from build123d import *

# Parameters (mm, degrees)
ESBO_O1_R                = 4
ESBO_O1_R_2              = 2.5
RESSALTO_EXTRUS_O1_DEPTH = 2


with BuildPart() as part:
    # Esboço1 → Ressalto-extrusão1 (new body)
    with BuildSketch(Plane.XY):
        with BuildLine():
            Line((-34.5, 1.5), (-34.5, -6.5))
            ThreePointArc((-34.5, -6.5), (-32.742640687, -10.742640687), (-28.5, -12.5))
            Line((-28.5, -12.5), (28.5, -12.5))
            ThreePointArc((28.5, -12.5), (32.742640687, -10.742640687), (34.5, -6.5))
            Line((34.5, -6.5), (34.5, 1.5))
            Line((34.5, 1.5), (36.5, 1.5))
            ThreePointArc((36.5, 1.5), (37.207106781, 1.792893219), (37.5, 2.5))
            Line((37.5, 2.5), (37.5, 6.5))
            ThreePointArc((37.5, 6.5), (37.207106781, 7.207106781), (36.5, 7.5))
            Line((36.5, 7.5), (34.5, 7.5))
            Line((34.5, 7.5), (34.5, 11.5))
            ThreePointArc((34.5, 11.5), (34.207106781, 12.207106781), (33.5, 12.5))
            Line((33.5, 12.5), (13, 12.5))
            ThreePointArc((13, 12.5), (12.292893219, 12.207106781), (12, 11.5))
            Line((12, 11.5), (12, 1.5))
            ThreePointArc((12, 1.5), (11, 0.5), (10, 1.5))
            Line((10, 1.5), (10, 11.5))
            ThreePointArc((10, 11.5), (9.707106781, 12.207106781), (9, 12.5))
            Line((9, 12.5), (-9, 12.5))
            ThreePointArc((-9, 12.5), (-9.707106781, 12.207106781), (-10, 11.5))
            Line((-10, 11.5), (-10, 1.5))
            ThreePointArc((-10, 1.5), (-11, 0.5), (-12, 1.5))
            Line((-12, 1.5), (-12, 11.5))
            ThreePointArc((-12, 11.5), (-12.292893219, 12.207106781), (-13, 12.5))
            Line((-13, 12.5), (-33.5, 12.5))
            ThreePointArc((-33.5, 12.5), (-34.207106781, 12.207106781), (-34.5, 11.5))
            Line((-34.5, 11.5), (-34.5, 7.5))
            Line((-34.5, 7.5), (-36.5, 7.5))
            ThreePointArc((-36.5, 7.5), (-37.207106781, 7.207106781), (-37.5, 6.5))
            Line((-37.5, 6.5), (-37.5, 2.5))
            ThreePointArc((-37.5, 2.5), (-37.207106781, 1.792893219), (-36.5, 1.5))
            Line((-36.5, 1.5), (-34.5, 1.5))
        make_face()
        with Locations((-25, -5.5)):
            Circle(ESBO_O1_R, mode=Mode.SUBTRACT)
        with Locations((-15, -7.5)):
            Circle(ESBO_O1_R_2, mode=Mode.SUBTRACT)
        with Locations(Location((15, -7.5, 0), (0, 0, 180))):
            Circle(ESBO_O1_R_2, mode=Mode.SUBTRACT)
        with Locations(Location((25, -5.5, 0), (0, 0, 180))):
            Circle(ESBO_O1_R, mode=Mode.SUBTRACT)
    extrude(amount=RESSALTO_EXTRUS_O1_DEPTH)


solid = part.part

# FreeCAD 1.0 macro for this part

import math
import FreeCAD as App
import Part
import Sketcher
from FreeCAD import Vector
Q = App.Units.Quantity

doc = App.newDocument("Part")
body = doc.addObject("PartDesign::Body", "Body")

# Sketch on XY plane
sketch1 = doc.addObject("Sketcher::SketchObject", "Sketch")
body.addObject(sketch1)
sketch1.AttachmentSupport = (doc.XY_Plane, [""])
sketch1.MapMode = "FlatFace"
sketch1.addGeometry([
    Part.LineSegment(Vector(-34.5, 1.5, 0), Vector(-34.5, -6.5, 0)),  # 0
    Part.ArcOfCircle(Part.Circle(Vector(-28.5, -6.5, 0), Vector(0, 0, 1), 6), math.radians(180), math.radians(270)),  # 1
    Part.LineSegment(Vector(-28.5, -12.5, 0), Vector(28.5, -12.5, 0)),  # 2
    Part.ArcOfCircle(Part.Circle(Vector(28.5, -6.5, 0), Vector(0, 0, 1), 6), math.radians(-90), math.radians(0)),  # 3
    Part.LineSegment(Vector(34.5, -6.5, 0), Vector(34.5, 1.5, 0)),  # 4
    Part.LineSegment(Vector(34.5, 1.5, 0), Vector(36.5, 1.5, 0)),  # 5
    Part.ArcOfCircle(Part.Circle(Vector(36.5, 2.5, 0), Vector(0, 0, 1), 1), math.radians(-90), math.radians(0)),  # 6
    Part.LineSegment(Vector(37.5, 2.5, 0), Vector(37.5, 6.5, 0)),  # 7
    Part.ArcOfCircle(Part.Circle(Vector(36.5, 6.5, 0), Vector(0, 0, 1), 1), math.radians(0), math.radians(90)),  # 8
    Part.LineSegment(Vector(36.5, 7.5, 0), Vector(34.5, 7.5, 0)),  # 9
    Part.LineSegment(Vector(34.5, 7.5, 0), Vector(34.5, 11.5, 0)),  # 10
    Part.ArcOfCircle(Part.Circle(Vector(33.5, 11.5, 0), Vector(0, 0, 1), 1), math.radians(0), math.radians(90)),  # 11
    Part.LineSegment(Vector(33.5, 12.5, 0), Vector(13, 12.5, 0)),  # 12
    Part.ArcOfCircle(Part.Circle(Vector(13, 11.5, 0), Vector(0, 0, 1), 1), math.radians(90), math.radians(180)),  # 13
    Part.LineSegment(Vector(12, 11.5, 0), Vector(12, 1.5, 0)),  # 14
    Part.ArcOfCircle(Part.Circle(Vector(11, 1.5, 0), Vector(0, 0, 1), 1), math.radians(180), math.radians(360)),  # 15
    Part.LineSegment(Vector(10, 1.5, 0), Vector(10, 11.5, 0)),  # 16
    Part.ArcOfCircle(Part.Circle(Vector(9, 11.5, 0), Vector(0, 0, 1), 1), math.radians(0), math.radians(90)),  # 17
    Part.LineSegment(Vector(9, 12.5, 0), Vector(-9, 12.5, 0)),  # 18
    Part.ArcOfCircle(Part.Circle(Vector(-9, 11.5, 0), Vector(0, 0, 1), 1), math.radians(90), math.radians(180)),  # 19
    Part.LineSegment(Vector(-10, 11.5, 0), Vector(-10, 1.5, 0)),  # 20
    Part.ArcOfCircle(Part.Circle(Vector(-11, 1.5, 0), Vector(0, 0, 1), 1), math.radians(180), math.radians(360)),  # 21
    Part.LineSegment(Vector(-12, 1.5, 0), Vector(-12, 11.5, 0)),  # 22
    Part.ArcOfCircle(Part.Circle(Vector(-13, 11.5, 0), Vector(0, 0, 1), 1), math.radians(0), math.radians(90)),  # 23
    Part.LineSegment(Vector(-13, 12.5, 0), Vector(-33.5, 12.5, 0)),  # 24
    Part.ArcOfCircle(Part.Circle(Vector(-33.5, 11.5, 0), Vector(0, 0, 1), 1), math.radians(90), math.radians(180)),  # 25
    Part.LineSegment(Vector(-34.5, 11.5, 0), Vector(-34.5, 7.5, 0)),  # 26
    Part.LineSegment(Vector(-34.5, 7.5, 0), Vector(-36.5, 7.5, 0)),  # 27
    Part.ArcOfCircle(Part.Circle(Vector(-36.5, 6.5, 0), Vector(0, 0, 1), 1), math.radians(90), math.radians(180)),  # 28
    Part.LineSegment(Vector(-37.5, 6.5, 0), Vector(-37.5, 2.5, 0)),  # 29
    Part.ArcOfCircle(Part.Circle(Vector(-36.5, 2.5, 0), Vector(0, 0, 1), 1), math.radians(-180), math.radians(-90)),  # 30
    Part.LineSegment(Vector(-36.5, 1.5, 0), Vector(-34.5, 1.5, 0)),  # 31
    Part.Circle(Vector(-15, -7.5, 0), Vector(0, 0, 1), 2.5),  # 32
    Part.Circle(Vector(15, -7.5, 0), Vector(0, 0, 1), 2.5),  # 33
    Part.Circle(Vector(-25, -5.5, 0), Vector(0, 0, 1), 4),  # 34
    Part.Circle(Vector(25, -5.5, 0), Vector(0, 0, 1), 4),  # 35
], False)
sketch1.addConstraint([
    Sketcher.Constraint("Tangent", 0, 2, 1, 1),
    Sketcher.Constraint("Tangent", 1, 2, 2, 1),
    Sketcher.Constraint("Tangent", 2, 2, 3, 1),
    Sketcher.Constraint("Tangent", 3, 2, 4, 1),
    Sketcher.Constraint("Coincident", 4, 2, 5, 1),
    Sketcher.Constraint("Tangent", 5, 2, 6, 1),
    Sketcher.Constraint("Tangent", 6, 2, 7, 1),
    Sketcher.Constraint("Tangent", 7, 2, 8, 1),
    Sketcher.Constraint("Tangent", 8, 2, 9, 1),
    Sketcher.Constraint("Coincident", 9, 2, 10, 1),
    Sketcher.Constraint("Tangent", 10, 2, 11, 1),
    Sketcher.Constraint("Tangent", 11, 2, 12, 1),
    Sketcher.Constraint("Tangent", 12, 2, 13, 1),
    Sketcher.Constraint("Tangent", 13, 2, 14, 1),
    Sketcher.Constraint("Tangent", 14, 2, 15, 2),
    Sketcher.Constraint("Tangent", 15, 1, 16, 1),
    Sketcher.Constraint("Tangent", 16, 2, 17, 1),
    Sketcher.Constraint("Tangent", 17, 2, 18, 1),
    Sketcher.Constraint("Tangent", 18, 2, 19, 1),
    Sketcher.Constraint("Tangent", 19, 2, 20, 1),
    Sketcher.Constraint("Tangent", 20, 2, 21, 2),
    Sketcher.Constraint("Tangent", 21, 1, 22, 1),
    Sketcher.Constraint("Tangent", 22, 2, 23, 1),
    Sketcher.Constraint("Tangent", 23, 2, 24, 1),
    Sketcher.Constraint("Tangent", 24, 2, 25, 1),
    Sketcher.Constraint("Tangent", 25, 2, 26, 1),
    Sketcher.Constraint("Coincident", 26, 2, 27, 1),
    Sketcher.Constraint("Tangent", 27, 2, 28, 1),
    Sketcher.Constraint("Tangent", 28, 2, 29, 1),
    Sketcher.Constraint("Tangent", 29, 2, 30, 1),
    Sketcher.Constraint("Tangent", 30, 2, 31, 1),
    Sketcher.Constraint("Coincident", 31, 2, 0, 1),
    Sketcher.Constraint("Vertical", 0),
    Sketcher.Constraint("Horizontal", 2),
    Sketcher.Constraint("Vertical", 4),
    Sketcher.Constraint("Horizontal", 5),
    Sketcher.Constraint("Vertical", 7),
    Sketcher.Constraint("Horizontal", 9),
    Sketcher.Constraint("Vertical", 10),
    Sketcher.Constraint("Horizontal", 12),
    Sketcher.Constraint("Vertical", 14),
    Sketcher.Constraint("Vertical", 16),
    Sketcher.Constraint("Horizontal", 18),
    Sketcher.Constraint("Vertical", 20),
    Sketcher.Constraint("Vertical", 22),
    Sketcher.Constraint("Horizontal", 24),
    Sketcher.Constraint("Vertical", 26),
    Sketcher.Constraint("Horizontal", 27),
    Sketcher.Constraint("Vertical", 29),
    Sketcher.Constraint("Horizontal", 31),
    Sketcher.Constraint("Equal", 1, 3),
    Sketcher.Constraint("Equal", 6, 8),
    Sketcher.Constraint("Equal", 8, 11),
    Sketcher.Constraint("Equal", 11, 13),
    Sketcher.Constraint("Equal", 13, 15),
    Sketcher.Constraint("Equal", 15, 17),
    Sketcher.Constraint("Equal", 17, 19),
    Sketcher.Constraint("Equal", 19, 21),
    Sketcher.Constraint("Equal", 21, 23),
    Sketcher.Constraint("Equal", 23, 25),
    Sketcher.Constraint("Equal", 25, 28),
    Sketcher.Constraint("Equal", 28, 30),
    Sketcher.Constraint("Equal", 32, 33),
    Sketcher.Constraint("Equal", 34, 35),
    Sketcher.Constraint("Symmetric", 15, 3, 21, 3, -2),
    Sketcher.Constraint("Symmetric", 11, 3, 25, 3, -2),
    Sketcher.Constraint("Symmetric", 8, 3, 28, 3, -2),
    Sketcher.Constraint("Symmetric", 32, 3, 33, 3, -2),
    Sketcher.Constraint("Symmetric", 34, 3, 35, 3, -2),
    Sketcher.Constraint("Symmetric", 4, 2, 31, 2, -2),
    Sketcher.Constraint("Horizontal", 13, 3, 17, 3),
    Sketcher.Constraint("Horizontal", 21, 3, 4, 2),
    Sketcher.Constraint("Vertical", 4, 2, 9, 2),
    Sketcher.Constraint("Equal", 7, 10),
    Sketcher.Constraint("Diameter", 32, Q("5 mm")),
    Sketcher.Constraint("Diameter", 34, Q("8 mm")),
    Sketcher.Constraint("Radius", 1, Q("6 mm")),
    Sketcher.Constraint("Radius", 6, Q("1 mm")),
    Sketcher.Constraint("DistanceX", 2, 1, 2, 2, Q("57 mm")),
    Sketcher.Constraint("DistanceX", 5, 1, 5, 2, Q("2 mm")),
    Sketcher.Constraint("DistanceX", 18, 2, 18, 1, Q("18 mm")),
    Sketcher.Constraint("DistanceY", 0, 2, 0, 1, Q("8 mm")),
    Sketcher.Constraint("DistanceY", 7, 1, 7, 2, Q("4 mm")),
    Sketcher.Constraint("DistanceX", 32, 3, -1, 1, Q("15 mm")),
    Sketcher.Constraint("DistanceX", 34, 3, -1, 1, Q("25 mm")),
    Sketcher.Constraint("DistanceY", 32, 3, 21, 3, Q("9 mm")),
    Sketcher.Constraint("DistanceY", 1, 3, 34, 3, Q("1 mm")),
    Sketcher.Constraint("DistanceY", 1, 3, -1, 1, Q("6.5 mm")),
])
pad1 = doc.addObject("PartDesign::Pad", "Pad")
body.addObject(pad1)
pad1.Profile = sketch1
pad1.Length = 2

doc.recompute()
